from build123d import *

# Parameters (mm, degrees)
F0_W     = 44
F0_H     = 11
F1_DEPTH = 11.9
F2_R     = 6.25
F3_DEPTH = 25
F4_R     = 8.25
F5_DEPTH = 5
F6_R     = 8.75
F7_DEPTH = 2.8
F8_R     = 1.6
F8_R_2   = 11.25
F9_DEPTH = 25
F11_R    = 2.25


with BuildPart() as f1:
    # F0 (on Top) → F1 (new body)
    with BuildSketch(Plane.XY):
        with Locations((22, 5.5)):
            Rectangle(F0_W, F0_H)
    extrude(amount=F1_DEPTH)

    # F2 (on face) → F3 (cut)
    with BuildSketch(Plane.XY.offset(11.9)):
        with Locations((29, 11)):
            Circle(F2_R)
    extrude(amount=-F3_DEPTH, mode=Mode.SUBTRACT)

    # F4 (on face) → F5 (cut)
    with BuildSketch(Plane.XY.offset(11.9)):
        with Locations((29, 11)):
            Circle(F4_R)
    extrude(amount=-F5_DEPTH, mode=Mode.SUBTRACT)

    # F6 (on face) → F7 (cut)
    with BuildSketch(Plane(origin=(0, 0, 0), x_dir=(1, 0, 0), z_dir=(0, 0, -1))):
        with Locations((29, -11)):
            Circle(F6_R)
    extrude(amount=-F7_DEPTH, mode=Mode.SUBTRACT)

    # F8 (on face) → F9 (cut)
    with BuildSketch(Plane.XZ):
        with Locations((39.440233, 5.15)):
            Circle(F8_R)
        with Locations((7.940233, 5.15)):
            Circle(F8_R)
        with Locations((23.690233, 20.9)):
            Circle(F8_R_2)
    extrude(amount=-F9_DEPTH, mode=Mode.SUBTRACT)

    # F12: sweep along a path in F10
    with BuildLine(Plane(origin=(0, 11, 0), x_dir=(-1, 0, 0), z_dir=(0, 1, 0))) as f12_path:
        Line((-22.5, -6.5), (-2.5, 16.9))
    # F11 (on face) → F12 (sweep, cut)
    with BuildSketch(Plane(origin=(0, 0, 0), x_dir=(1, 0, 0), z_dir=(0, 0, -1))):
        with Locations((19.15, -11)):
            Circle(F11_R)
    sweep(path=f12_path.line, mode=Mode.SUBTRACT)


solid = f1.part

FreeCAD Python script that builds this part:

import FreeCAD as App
import Part
import Sketcher

V = App.Vector


def add_polygon(sketch, points):
    """Adds a closed chain of lines whose ends are joined by coincident constraints."""
    first, n = sketch.GeometryCount, len(points)
    for a, b in zip(points, points[1:] + points[:1]):
        sketch.addGeometry(Part.LineSegment(App.Vector(*a, 0), App.Vector(*b, 0)), False)
    for i in range(n):
        sketch.addConstraint(Sketcher.Constraint("Coincident", first + i, 2, first + (i + 1) % n, 1))

doc = App.newDocument("Part")
body = doc.addObject("PartDesign::Body", "Body")

# Sketch on XY plane
sketch1 = body.newObject("Sketcher::SketchObject", "Sketch")
sketch1.AttachmentSupport = (doc.getObject("XY_Plane"), [""])
sketch1.MapMode = "FlatFace"
add_polygon(sketch1, [(0, 11), (0, 0), (44, 0), (44, 11)])  # lines 0-3
sketch1.addConstraint([
    Sketcher.Constraint("Vertical", 0),
    Sketcher.Constraint("Horizontal", 1),
    Sketcher.Constraint("Vertical", 2),
    Sketcher.Constraint("Horizontal", 3),
    Sketcher.Constraint("Coincident", 0, 2, -1, 1),
    Sketcher.Constraint("DistanceX", 1, 1, 1, 2, 44.0),
    Sketcher.Constraint("DistanceY", 0, 2, 0, 1, 11.0),
])
pad1 = body.newObject("PartDesign::Pad", "Pad")
pad1.Profile = sketch1
pad1.Length = 11.9

# Sketch on XY plane
sketch2 = body.newObject("Sketcher::SketchObject", "Sketch001")
sketch2.AttachmentSupport = (doc.getObject("XY_Plane"), [""])
sketch2.MapMode = "FlatFace"
sketch2.AttachmentOffset = App.Placement(V(0, 0, 11.9), App.Rotation())
sketch2.addGeometry(Part.Circle(V(29, 11, 0), V(0, 0, 1), 6), False)
sketch2.addConstraint([
    Sketcher.Constraint("Diameter", 0, 12.5),
    Sketcher.Constraint("DistanceX", -1, 1, 0, 3, 29.0),
    Sketcher.Constraint("DistanceY", -1, 1, 0, 3, 11.0),
])
pocket1 = body.newObject("PartDesign::Pocket", "Pocket")
pocket1.Profile = sketch2
pocket1.Length = 25

# Sketch on XY plane
sketch3 = body.newObject("Sketcher::SketchObject", "Sketch002")
sketch3.AttachmentSupport = (doc.getObject("XY_Plane"), [""])
sketch3.MapMode = "FlatFace"
sketch3.AttachmentOffset = App.Placement(V(0, 0, 11.9), App.Rotation())
sketch3.addGeometry(Part.Circle(V(29, 11, 0), V(0, 0, 1), 8), False)
sketch3.addConstraint([
    Sketcher.Constraint("Diameter", 0, 16.5),
    Sketcher.Constraint("DistanceX", -1, 1, 0, 3, 29.0),
    Sketcher.Constraint("DistanceY", -1, 1, 0, 3, 11.0),
])
pocket2 = body.newObject("PartDesign::Pocket", "Pocket001")
pocket2.Profile = sketch3
pocket2.Length = 5

# Sketch on XY plane
sketch4 = body.newObject("Sketcher::SketchObject", "Sketch003")
sketch4.AttachmentSupport = (doc.getObject("XY_Plane"), [""])
sketch4.MapMode = "FlatFace"
sketch4.addGeometry(Part.Circle(V(29, 11, 0), V(0, 0, 1), 9), False)
sketch4.addConstraint([
    Sketcher.Constraint("Diameter", 0, 17.5),
    Sketcher.Constraint("DistanceX", -1, 1, 0, 3, 29.0),
    Sketcher.Constraint("DistanceY", -1, 1, 0, 3, 11.0),
])
pocket3 = body.newObject("PartDesign::Pocket", "Pocket002")
pocket3.Profile = sketch4
pocket3.Length = 2.8
pocket3.Reversed = True

# Sketch on XZ plane
sketch5 = body.newObject("Sketcher::SketchObject", "Sketch004")
sketch5.AttachmentSupport = (doc.getObject("XZ_Plane"), [""])
sketch5.MapMode = "FlatFace"
sketch5.addGeometry([
    Part.Circle(V(39.4, 5.2, 0), V(0, 0, 1), 1.6),
    Part.Circle(V(7.9, 5.2, 0), V(0, 0, 1), 1.6),
    Part.Circle(V(23.7, 20.9, 0), V(0, 0, 1), 11.2),
], False)
sketch5.addConstraint([
    Sketcher.Constraint("Equal", 0, 1),
    Sketcher.Constraint("Horizontal", 0, 3, 1, 3),
    Sketcher.Constraint("Diameter", 0, 3.2),
    Sketcher.Constraint("Diameter", 2, 22.5),
    Sketcher.Constraint("DistanceY", -1, 1, 2, 3, 20.9),
    Sketcher.Constraint("DistanceX", 1, 3, 0, 3, 31.5),
    Sketcher.Constraint("DistanceY", -1, 1, 0, 3, 5.15),
    Sketcher.Constraint("DistanceX", 2, 3, 0, 3, 15.75),
    Sketcher.Constraint("DistanceX", -1, 1, 0, 3, 39.440233),
])
pocket4 = body.newObject("PartDesign::Pocket", "Pocket003")
pocket4.Profile = sketch5
pocket4.Length = 25

# Sketch on XY plane
sketch6 = body.newObject("Sketcher::SketchObject", "Sketch005")
sketch6.AttachmentSupport = (doc.getObject("XY_Plane"), [""])
sketch6.MapMode = "FlatFace"
sketch6.addGeometry(Part.Circle(V(19.1, 11, 0), V(0, 0, 1), 2.2), False)
sketch6.addConstraint([
    Sketcher.Constraint("Diameter", 0, 4.5),
    Sketcher.Constraint("DistanceY", -1, 1, 0, 3, 11.0),
    Sketcher.Constraint("DistanceX", -1, 1, 0, 3, 19.15),
])

# Sketch on an angled plane
sketch7 = body.newObject("Sketcher::SketchObject", "Sketch006")
sketch7.Placement = App.Placement(V(9.79157, 0, 8.368863), App.Rotation(V(-0.649720599, 0, 0.760173101), V(0, 1, 0), V(-0.760173101, 0, -0.649720599), "ZXY"))
sketch7.addGeometry(Part.LineSegment(V(-20, 11, 0), V(11, 11, 0)), False)
sketch7.addConstraint([
    Sketcher.Constraint("Horizontal", 0),
    Sketcher.Constraint("DistanceY", -1, 1, 0, 1, 11.0),
    Sketcher.Constraint("DistanceX", 0, 1, 0, 2, 30.782463),
    Sketcher.Constraint("DistanceX", 0, 1, -1, 1, 19.559839),
])
doc.recompute()

subtractivepipe = body.newObject("PartDesign::SubtractivePipe", "SubtractivePipe")
subtractivepipe.Profile = sketch6
subtractivepipe.Spine = (sketch7, ["Edge1"])

doc.recompute()
